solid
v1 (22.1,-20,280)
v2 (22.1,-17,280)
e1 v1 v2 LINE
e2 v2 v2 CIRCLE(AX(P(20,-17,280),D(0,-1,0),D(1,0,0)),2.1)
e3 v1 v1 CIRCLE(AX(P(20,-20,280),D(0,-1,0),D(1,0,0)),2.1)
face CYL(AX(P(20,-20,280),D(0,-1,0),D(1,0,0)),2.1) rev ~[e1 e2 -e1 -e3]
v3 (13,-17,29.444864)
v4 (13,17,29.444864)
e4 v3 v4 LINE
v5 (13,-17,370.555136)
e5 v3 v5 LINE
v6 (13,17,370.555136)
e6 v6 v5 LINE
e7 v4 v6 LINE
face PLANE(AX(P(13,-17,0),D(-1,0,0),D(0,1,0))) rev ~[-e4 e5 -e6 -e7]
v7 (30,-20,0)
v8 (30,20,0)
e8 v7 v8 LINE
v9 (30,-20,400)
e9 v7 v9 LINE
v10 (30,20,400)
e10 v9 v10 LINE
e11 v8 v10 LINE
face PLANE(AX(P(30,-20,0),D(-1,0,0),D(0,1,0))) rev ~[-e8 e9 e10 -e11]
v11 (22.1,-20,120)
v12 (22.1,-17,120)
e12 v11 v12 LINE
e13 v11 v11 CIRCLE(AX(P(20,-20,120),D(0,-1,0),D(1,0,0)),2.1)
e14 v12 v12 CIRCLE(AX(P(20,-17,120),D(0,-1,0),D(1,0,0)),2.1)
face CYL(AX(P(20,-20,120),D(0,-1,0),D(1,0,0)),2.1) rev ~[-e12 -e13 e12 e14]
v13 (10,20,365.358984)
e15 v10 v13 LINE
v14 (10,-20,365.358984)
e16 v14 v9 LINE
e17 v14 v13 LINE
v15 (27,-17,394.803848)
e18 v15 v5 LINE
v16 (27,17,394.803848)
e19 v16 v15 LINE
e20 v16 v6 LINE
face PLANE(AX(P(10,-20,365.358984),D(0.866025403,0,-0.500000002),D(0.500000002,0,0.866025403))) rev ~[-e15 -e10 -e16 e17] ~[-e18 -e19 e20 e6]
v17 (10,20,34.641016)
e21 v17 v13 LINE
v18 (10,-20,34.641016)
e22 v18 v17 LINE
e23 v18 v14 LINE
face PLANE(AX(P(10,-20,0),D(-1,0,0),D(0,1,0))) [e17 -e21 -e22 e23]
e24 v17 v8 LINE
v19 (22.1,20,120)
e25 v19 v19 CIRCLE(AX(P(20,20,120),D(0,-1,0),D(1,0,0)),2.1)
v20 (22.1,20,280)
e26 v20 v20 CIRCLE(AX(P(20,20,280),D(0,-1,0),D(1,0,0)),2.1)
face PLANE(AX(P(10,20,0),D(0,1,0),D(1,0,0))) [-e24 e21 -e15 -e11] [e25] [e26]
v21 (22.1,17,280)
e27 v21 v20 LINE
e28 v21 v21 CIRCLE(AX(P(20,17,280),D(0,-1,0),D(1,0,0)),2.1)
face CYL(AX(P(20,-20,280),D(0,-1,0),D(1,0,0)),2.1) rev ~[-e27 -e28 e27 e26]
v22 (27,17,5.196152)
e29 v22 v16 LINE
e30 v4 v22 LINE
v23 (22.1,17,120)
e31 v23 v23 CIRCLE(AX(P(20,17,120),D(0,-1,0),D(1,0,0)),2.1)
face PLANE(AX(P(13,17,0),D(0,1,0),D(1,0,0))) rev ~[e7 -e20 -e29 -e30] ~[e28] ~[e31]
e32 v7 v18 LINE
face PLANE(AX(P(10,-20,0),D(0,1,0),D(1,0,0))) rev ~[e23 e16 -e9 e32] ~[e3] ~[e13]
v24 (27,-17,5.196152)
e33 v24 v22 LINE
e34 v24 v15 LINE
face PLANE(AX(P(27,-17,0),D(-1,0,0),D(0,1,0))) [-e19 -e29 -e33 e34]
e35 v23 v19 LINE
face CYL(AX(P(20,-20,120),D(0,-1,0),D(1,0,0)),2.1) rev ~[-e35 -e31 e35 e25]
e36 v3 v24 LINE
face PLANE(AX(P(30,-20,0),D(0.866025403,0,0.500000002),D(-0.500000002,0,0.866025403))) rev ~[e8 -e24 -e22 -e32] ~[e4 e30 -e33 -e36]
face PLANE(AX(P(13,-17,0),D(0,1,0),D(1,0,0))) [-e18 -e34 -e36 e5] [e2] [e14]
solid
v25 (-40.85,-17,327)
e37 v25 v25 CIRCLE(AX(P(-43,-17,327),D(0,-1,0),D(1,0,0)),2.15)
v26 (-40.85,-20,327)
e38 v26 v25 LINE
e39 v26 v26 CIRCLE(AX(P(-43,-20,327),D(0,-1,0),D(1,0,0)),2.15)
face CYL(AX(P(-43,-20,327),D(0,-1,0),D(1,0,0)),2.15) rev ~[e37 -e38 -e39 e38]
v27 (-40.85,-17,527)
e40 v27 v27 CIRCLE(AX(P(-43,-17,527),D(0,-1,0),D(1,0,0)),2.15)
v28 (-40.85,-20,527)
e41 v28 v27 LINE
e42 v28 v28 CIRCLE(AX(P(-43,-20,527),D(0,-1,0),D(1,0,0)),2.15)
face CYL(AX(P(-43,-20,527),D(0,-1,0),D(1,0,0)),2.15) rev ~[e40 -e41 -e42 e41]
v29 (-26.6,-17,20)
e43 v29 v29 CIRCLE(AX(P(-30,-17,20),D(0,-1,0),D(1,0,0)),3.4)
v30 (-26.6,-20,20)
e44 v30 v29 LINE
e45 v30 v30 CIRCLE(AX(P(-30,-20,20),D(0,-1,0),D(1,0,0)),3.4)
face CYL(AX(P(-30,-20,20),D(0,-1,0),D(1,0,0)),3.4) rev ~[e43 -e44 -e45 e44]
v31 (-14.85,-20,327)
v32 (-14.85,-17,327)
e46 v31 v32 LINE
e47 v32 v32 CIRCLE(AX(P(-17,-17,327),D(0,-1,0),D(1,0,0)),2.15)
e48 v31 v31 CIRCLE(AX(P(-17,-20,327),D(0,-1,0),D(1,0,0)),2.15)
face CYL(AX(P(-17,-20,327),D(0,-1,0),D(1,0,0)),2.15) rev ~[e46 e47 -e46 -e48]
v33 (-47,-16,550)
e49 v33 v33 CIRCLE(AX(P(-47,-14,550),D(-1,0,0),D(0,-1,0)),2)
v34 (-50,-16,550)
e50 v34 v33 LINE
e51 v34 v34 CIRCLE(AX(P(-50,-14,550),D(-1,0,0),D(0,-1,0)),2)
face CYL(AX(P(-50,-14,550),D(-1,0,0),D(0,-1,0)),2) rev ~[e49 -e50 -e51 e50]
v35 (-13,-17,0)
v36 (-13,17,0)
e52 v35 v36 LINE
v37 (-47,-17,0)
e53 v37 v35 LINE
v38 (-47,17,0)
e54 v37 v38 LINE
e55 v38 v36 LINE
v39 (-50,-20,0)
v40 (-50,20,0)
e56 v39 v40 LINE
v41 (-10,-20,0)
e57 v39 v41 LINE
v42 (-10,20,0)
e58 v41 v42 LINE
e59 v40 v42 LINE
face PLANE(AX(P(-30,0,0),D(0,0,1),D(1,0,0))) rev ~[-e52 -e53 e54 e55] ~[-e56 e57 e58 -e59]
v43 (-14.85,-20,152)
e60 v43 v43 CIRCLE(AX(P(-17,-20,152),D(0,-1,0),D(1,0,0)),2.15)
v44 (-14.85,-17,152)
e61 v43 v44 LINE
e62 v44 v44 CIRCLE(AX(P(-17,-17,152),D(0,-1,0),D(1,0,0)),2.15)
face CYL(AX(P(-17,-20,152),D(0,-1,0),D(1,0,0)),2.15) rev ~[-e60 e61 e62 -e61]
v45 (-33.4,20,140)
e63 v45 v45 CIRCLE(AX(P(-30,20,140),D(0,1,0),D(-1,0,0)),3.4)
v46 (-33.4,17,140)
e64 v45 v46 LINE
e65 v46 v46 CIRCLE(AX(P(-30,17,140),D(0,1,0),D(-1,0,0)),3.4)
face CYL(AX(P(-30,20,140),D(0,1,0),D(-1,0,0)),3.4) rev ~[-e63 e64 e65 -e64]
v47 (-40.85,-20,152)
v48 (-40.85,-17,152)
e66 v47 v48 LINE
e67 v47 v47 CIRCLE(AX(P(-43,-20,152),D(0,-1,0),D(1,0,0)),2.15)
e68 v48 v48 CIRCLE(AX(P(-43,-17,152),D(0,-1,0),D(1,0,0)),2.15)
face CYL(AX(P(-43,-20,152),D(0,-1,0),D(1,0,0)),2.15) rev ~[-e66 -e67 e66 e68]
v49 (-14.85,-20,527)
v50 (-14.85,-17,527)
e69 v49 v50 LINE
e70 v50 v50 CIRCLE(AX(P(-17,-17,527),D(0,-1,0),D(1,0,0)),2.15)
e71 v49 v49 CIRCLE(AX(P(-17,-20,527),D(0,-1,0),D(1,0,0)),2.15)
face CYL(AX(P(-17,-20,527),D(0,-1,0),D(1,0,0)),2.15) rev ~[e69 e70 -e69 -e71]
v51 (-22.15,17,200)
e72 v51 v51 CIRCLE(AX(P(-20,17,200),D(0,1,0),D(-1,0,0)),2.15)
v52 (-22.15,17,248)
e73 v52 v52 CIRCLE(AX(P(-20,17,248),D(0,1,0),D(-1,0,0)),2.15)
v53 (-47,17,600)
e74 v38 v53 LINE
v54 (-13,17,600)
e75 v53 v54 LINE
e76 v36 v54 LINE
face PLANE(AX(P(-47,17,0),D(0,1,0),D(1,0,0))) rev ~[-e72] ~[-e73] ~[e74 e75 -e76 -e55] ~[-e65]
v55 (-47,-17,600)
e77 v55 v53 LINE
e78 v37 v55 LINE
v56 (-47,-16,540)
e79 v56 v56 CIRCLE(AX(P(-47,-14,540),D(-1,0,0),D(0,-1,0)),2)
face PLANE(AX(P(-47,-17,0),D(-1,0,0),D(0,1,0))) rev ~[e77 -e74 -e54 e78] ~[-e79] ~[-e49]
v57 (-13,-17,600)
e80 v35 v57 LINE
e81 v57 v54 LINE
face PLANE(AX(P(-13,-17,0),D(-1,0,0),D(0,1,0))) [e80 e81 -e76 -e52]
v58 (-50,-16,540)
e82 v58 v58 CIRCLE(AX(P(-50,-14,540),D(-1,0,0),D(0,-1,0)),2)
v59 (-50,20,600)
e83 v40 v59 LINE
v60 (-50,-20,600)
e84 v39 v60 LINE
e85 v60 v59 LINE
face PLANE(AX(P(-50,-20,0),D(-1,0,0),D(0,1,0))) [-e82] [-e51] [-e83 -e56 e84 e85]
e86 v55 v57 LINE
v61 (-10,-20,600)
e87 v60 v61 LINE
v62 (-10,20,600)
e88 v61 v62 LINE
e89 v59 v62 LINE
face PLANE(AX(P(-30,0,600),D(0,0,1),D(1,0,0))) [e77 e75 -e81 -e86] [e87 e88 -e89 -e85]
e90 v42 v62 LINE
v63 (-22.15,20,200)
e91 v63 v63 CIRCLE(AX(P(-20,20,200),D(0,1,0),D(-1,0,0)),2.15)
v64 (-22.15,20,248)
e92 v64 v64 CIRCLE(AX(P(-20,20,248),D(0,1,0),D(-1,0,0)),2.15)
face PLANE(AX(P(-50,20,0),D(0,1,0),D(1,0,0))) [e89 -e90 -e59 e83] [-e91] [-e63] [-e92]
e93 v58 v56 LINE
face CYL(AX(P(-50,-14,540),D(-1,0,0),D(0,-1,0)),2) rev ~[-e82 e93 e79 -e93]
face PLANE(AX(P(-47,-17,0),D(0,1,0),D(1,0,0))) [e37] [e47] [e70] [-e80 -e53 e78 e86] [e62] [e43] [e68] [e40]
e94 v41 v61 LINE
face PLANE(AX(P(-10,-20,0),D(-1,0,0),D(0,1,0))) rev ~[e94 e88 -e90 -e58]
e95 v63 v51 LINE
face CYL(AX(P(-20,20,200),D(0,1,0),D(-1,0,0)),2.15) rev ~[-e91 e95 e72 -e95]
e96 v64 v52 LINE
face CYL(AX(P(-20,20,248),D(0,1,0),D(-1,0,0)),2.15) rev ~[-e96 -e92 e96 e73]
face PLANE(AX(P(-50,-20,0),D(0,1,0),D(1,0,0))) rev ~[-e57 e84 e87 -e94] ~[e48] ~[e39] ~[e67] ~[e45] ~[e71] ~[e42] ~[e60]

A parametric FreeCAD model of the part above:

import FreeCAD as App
import Part
import Sketcher
from FreeCAD import Vector
Q = App.Units.Quantity

doc = App.newDocument("Part")
body = doc.addObject("PartDesign::Body", "Body")

sketch1 = body.newObject("Sketcher::SketchObject", "Sketch")
sketch1.AttachmentSupport = (doc.getObject("XY_Plane"), [""])
sketch1.MapMode = "FlatFace"
sketch1.addGeometry([
    Part.LineSegment(Vector(-50, 20, 0), Vector(-50, -20, 0)),
    Part.LineSegment(Vector(-50, -20, 0), Vector(-10, -20, 0)),
    Part.LineSegment(Vector(-10, -20, 0), Vector(-10, 20, 0)),
    Part.LineSegment(Vector(-10, 20, 0), Vector(-50, 20, 0)),
    Part.LineSegment(Vector(-13, -17, 0), Vector(-47, -17, 0)),
    Part.LineSegment(Vector(-47, -17, 0), Vector(-47, 17, 0)),
    Part.LineSegment(Vector(-47, 17, 0), Vector(-13, 17, 0)),
    Part.LineSegment(Vector(-13, 17, 0), Vector(-13, -17, 0)),
], False)
sketch1.addConstraint([
    Sketcher.Constraint("Coincident", 0, 2, 1, 1),
    Sketcher.Constraint("Coincident", 1, 2, 2, 1),
    Sketcher.Constraint("Coincident", 2, 2, 3, 1),
    Sketcher.Constraint("Coincident", 3, 2, 0, 1),
    Sketcher.Constraint("Coincident", 4, 2, 5, 1),
    Sketcher.Constraint("Coincident", 5, 2, 6, 1),
    Sketcher.Constraint("Coincident", 6, 2, 7, 1),
    Sketcher.Constraint("Coincident", 7, 2, 4, 1),
    Sketcher.Constraint("Vertical", 0),
    Sketcher.Constraint("Horizontal", 1),
    Sketcher.Constraint("Vertical", 2),
    Sketcher.Constraint("Horizontal", 3),
    Sketcher.Constraint("Horizontal", 4),
    Sketcher.Constraint("Vertical", 5),
    Sketcher.Constraint("Horizontal", 6),
    Sketcher.Constraint("Vertical", 7),
    Sketcher.Constraint("Equal", 3, 0),
    Sketcher.Constraint("Equal", 6, 5),
    Sketcher.Constraint("DistanceX", 1, 1, 1, 2, Q("40 mm")),
    Sketcher.Constraint("DistanceX", 4, 2, 4, 1, Q("34 mm")),
    Sketcher.Constraint("DistanceX", 0, 2, -1, 1, Q("50 mm")),
    Sketcher.Constraint("DistanceY", 0, 2, -1, 1, Q("20 mm")),
    Sketcher.Constraint("DistanceX", 4, 2, -1, 1, Q("47 mm")),
    Sketcher.Constraint("DistanceY", 4, 2, -1, 1, Q("17 mm")),
])
pad1 = body.newObject("PartDesign::Pad", "Pad")
pad1.Profile = sketch1
pad1.Length = 600

sketch2 = body.newObject("Sketcher::SketchObject", "Sketch001")
sketch2.AttachmentSupport = (doc.getObject("XZ_Plane"), [""])
sketch2.MapMode = "FlatFace"
sketch2.AttachmentOffset = App.Placement(Vector(0, 0, 20), App.Rotation())
sketch2.addGeometry([
    Part.Circle(Vector(-43, 527, 0), Vector(0, 0, 1), 2.1),
    Part.Circle(Vector(-17, 527, 0), Vector(0, 0, 1), 2.1),
    Part.Circle(Vector(-43, 327, 0), Vector(0, 0, 1), 2.1),
    Part.Circle(Vector(-17, 327, 0), Vector(0, 0, 1), 2.1),
    Part.Circle(Vector(-43, 152, 0), Vector(0, 0, 1), 2.1),
    Part.Circle(Vector(-17, 152, 0), Vector(0, 0, 1), 2.1),
    Part.Circle(Vector(-30, 20, 0), Vector(0, 0, 1), 3.4),
], False)
sketch2.addConstraint([
    Sketcher.Constraint("Equal", 0, 1),
    Sketcher.Constraint("Equal", 1, 2),
    Sketcher.Constraint("Equal", 2, 3),
    Sketcher.Constraint("Equal", 3, 4),
    Sketcher.Constraint("Equal", 4, 5),
    Sketcher.Constraint("Horizontal", 0, 3, 1, 3),
    Sketcher.Constraint("Horizontal", 2, 3, 3, 3),
    Sketcher.Constraint("Horizontal", 4, 3, 5, 3),
    Sketcher.Constraint("Vertical", 0, 3, 2, 3),
    Sketcher.Constraint("Vertical", 1, 3, 3, 3),
    Sketcher.Constraint("Vertical", 2, 3, 4, 3),
    Sketcher.Constraint("Vertical", 3, 3, 5, 3),
    Sketcher.Constraint("Diameter", 0, Q("4.3 mm")),
    Sketcher.Constraint("Diameter", 6, Q("6.8 mm")),
    Sketcher.Constraint("DistanceX", 0, 3, -1, 1, Q("43 mm")),
    Sketcher.Constraint("DistanceY", -1, 1, 0, 3, Q("527 mm")),
    Sketcher.Constraint("DistanceX", 1, 3, -1, 1, Q("17 mm")),
    Sketcher.Constraint("DistanceY", -1, 1, 2, 3, Q("327 mm")),
    Sketcher.Constraint("DistanceY", -1, 1, 4, 3, Q("152 mm")),
    Sketcher.Constraint("DistanceX", 6, 3, -1, 1, Q("30 mm")),
    Sketcher.Constraint("DistanceY", -1, 1, 6, 3, Q("20 mm")),
])
pocket1 = body.newObject("PartDesign::Pocket", "Pocket")
pocket1.Profile = sketch2
pocket1.Length = 25

sketch3 = body.newObject("Sketcher::SketchObject", "Sketch002")
sketch3.AttachmentSupport = (doc.getObject("YZ_Plane"), [""])
sketch3.MapMode = "FlatFace"
sketch3.AttachmentOffset = App.Placement(Vector(0, 0, -50), App.Rotation())
sketch3.addGeometry([
    Part.Circle(Vector(-14, 550, 0), Vector(0, 0, 1), 2),
    Part.Circle(Vector(-14, 540, 0), Vector(0, 0, 1), 2),
], False)
sketch3.addConstraint([
    Sketcher.Constraint("Equal", 0, 1),
    Sketcher.Constraint("Vertical", 0, 3, 1, 3),
    Sketcher.Constraint("Diameter", 0, Q("4 mm")),
    Sketcher.Constraint("DistanceX", 0, 3, -1, 1, Q("14 mm")),
    Sketcher.Constraint("DistanceY", -1, 1, 0, 3, Q("550 mm")),
    Sketcher.Constraint("DistanceY", -1, 1, 1, 3, Q("540 mm")),
])
pocket2 = body.newObject("PartDesign::Pocket", "Pocket001")
pocket2.Profile = sketch3
pocket2.Length = 25
pocket2.Reversed = True

sketch4 = body.newObject("Sketcher::SketchObject", "Sketch003")
sketch4.AttachmentSupport = (doc.getObject("XZ_Plane"), [""])
sketch4.MapMode = "FlatFace"
sketch4.AttachmentOffset = App.Placement(Vector(0, 0, -20), App.Rotation())
sketch4.addGeometry([
    Part.Circle(Vector(-30, 140, 0), Vector(0, 0, 1), 3.4),
    Part.Circle(Vector(-20, 200, 0), Vector(0, 0, 1), 2.1),
    Part.Circle(Vector(-20, 248, 0), Vector(0, 0, 1), 2.1),
], False)
sketch4.addConstraint([
    Sketcher.Constraint("Equal", 1, 2),
    Sketcher.Constraint("Vertical", 1, 3, 2, 3),
    Sketcher.Constraint("Diameter", 0, Q("6.8 mm")),
    Sketcher.Constraint("Diameter", 1, Q("4.3 mm")),
    Sketcher.Constraint("DistanceX", 0, 3, -1, 1, Q("30 mm")),
    Sketcher.Constraint("DistanceY", -1, 1, 0, 3, Q("140 mm")),
    Sketcher.Constraint("DistanceX", 1, 3, -1, 1, Q("20 mm")),
    Sketcher.Constraint("DistanceY", -1, 1, 1, 3, Q("200 mm")),
    Sketcher.Constraint("DistanceY", -1, 1, 2, 3, Q("248 mm")),
])
pocket3 = body.newObject("PartDesign::Pocket", "Pocket002")
pocket3.Profile = sketch4
pocket3.Length = 25
pocket3.Reversed = True
body2 = doc.addObject("PartDesign::Body", "Body001")

sketch5 = body2.newObject("Sketcher::SketchObject", "Sketch004")
sketch5.AttachmentSupport = (doc.getObject("XY_Plane001"), [""])
sketch5.MapMode = "FlatFace"
sketch5.addGeometry([
    Part.LineSegment(Vector(10, 20, 0), Vector(10, -20, 0)),
    Part.LineSegment(Vector(10, -20, 0), Vector(30, -20, 0)),
    Part.LineSegment(Vector(30, -20, 0), Vector(30, 20, 0)),
    Part.LineSegment(Vector(30, 20, 0), Vector(10, 20, 0)),
    Part.LineSegment(Vector(27, -17, 0), Vector(13, -17, 0)),
    Part.LineSegment(Vector(13, -17, 0), Vector(13, 17, 0)),
    Part.LineSegment(Vector(13, 17, 0), Vector(27, 17, 0)),
    Part.LineSegment(Vector(27, 17, 0), Vector(27, -17, 0)),
], False)
sketch5.addConstraint([
    Sketcher.Constraint("Coincident", 0, 2, 1, 1),
    Sketcher.Constraint("Coincident", 1, 2, 2, 1),
    Sketcher.Constraint("Coincident", 2, 2, 3, 1),
    Sketcher.Constraint("Coincident", 3, 2, 0, 1),
    Sketcher.Constraint("Coincident", 4, 2, 5, 1),
    Sketcher.Constraint("Coincident", 5, 2, 6, 1),
    Sketcher.Constraint("Coincident", 6, 2, 7, 1),
    Sketcher.Constraint("Coincident", 7, 2, 4, 1),
    Sketcher.Constraint("Vertical", 0),
    Sketcher.Constraint("Horizontal", 1),
    Sketcher.Constraint("Vertical", 2),
    Sketcher.Constraint("Horizontal", 3),
    Sketcher.Constraint("Horizontal", 4),
    Sketcher.Constraint("Vertical", 5),
    Sketcher.Constraint("Horizontal", 6),
    Sketcher.Constraint("Vertical", 7),
    Sketcher.Constraint("DistanceX", 1, 1, 1, 2, Q("20 mm")),
    Sketcher.Constraint("DistanceX", 4, 2, 4, 1, Q("14 mm")),
    Sketcher.Constraint("DistanceY", 0, 2, 0, 1, Q("40 mm")),
    Sketcher.Constraint("DistanceY", 5, 1, 5, 2, Q("34 mm")),
    Sketcher.Constraint("DistanceX", -1, 1, 0, 2, Q("10 mm")),
    Sketcher.Constraint("DistanceY", 0, 2, -1, 1, Q("20 mm")),
    Sketcher.Constraint("DistanceX", -1, 1, 4, 2, Q("13 mm")),
    Sketcher.Constraint("DistanceY", 4, 2, -1, 1, Q("17 mm")),
])
pad2 = body2.newObject("PartDesign::Pad", "Pad001")
pad2.Profile = sketch5
pad2.Length = 400

sketch6 = body2.newObject("Sketcher::SketchObject", "Sketch005")
sketch6.AttachmentSupport = (doc.getObject("XZ_Plane001"), [""])
sketch6.MapMode = "FlatFace"
sketch6.AttachmentOffset = App.Placement(Vector(0, 0, 20), App.Rotation())
sketch6.addGeometry([
    Part.LineSegment(Vector(10, 365, 0), Vector(30, 400, 0)),
    Part.LineSegment(Vector(30, 400, 0), Vector(10, 400, 0)),
    Part.LineSegment(Vector(10, 400, 0), Vector(10, 365, 0)),
    Part.LineSegment(Vector(10, 0, 0), Vector(30, 0, 0)),
    Part.LineSegment(Vector(30, 0, 0), Vector(10, 35, 0)),
    Part.LineSegment(Vector(10, 35, 0), Vector(10, 0, 0)),
], False)
sketch6.addConstraint([
    Sketcher.Constraint("Coincident", 0, 2, 1, 1),
    Sketcher.Constraint("Coincident", 1, 2, 2, 1),
    Sketcher.Constraint("Coincident", 2, 2, 0, 1),
    Sketcher.Constraint("Coincident", 3, 2, 4, 1),
    Sketcher.Constraint("Coincident", 4, 2, 5, 1),
    Sketcher.Constraint("Coincident", 5, 2, 3, 1),
    Sketcher.Constraint("Horizontal", 1),
    Sketcher.Constraint("Vertical", 2),
    Sketcher.Constraint("Horizontal", 3),
    Sketcher.Constraint("Vertical", 5),
    Sketcher.Constraint("PointOnObject", 3, 2, -1),
    Sketcher.Constraint("Vertical", 0, 2, 3, 2),
    Sketcher.Constraint("Vertical", 2, 2, 4, 2),
    Sketcher.Constraint("Equal", 2, 5),
    Sketcher.Constraint("DistanceX", 1, 2, 1, 1, Q("20 mm")),
    Sketcher.Constraint("Angle", 0, Q("60 deg")),
    Sketcher.Constraint("DistanceX", -1, 1, 0, 2, Q("30 mm")),
    Sketcher.Constraint("DistanceY", -1, 1, 0, 2, Q("400 mm")),
])
pocket4 = body2.newObject("PartDesign::Pocket", "Pocket003")
pocket4.Profile = sketch6
pocket4.Type = "ThroughAll"

sketch7 = body2.newObject("Sketcher::SketchObject", "Sketch006")
sketch7.AttachmentSupport = (doc.getObject("XZ_Plane001"), [""])
sketch7.MapMode = "FlatFace"
sketch7.AttachmentOffset = App.Placement(Vector(0, 0, 20), App.Rotation())
sketch7.addGeometry([
    Part.Circle(Vector(20, 280, 0), Vector(0, 0, 1), 2.1),
    Part.Circle(Vector(20, 120, 0), Vector(0, 0, 1), 2.1),
], False)
sketch7.addConstraint([
    Sketcher.Constraint("Equal", 0, 1),
    Sketcher.Constraint("Vertical", 0, 3, 1, 3),
    Sketcher.Constraint("Diameter", 0, Q("4.2 mm")),
    Sketcher.Constraint("DistanceX", -1, 1, 0, 3, Q("20 mm")),
    Sketcher.Constraint("DistanceY", -1, 1, 0, 3, Q("280 mm")),
    Sketcher.Constraint("DistanceY", -1, 1, 1, 3, Q("120 mm")),
])
pocket5 = body2.newObject("PartDesign::Pocket", "Pocket004")
pocket5.Profile = sketch7
pocket5.Type = "ThroughAll"

doc.recompute()
